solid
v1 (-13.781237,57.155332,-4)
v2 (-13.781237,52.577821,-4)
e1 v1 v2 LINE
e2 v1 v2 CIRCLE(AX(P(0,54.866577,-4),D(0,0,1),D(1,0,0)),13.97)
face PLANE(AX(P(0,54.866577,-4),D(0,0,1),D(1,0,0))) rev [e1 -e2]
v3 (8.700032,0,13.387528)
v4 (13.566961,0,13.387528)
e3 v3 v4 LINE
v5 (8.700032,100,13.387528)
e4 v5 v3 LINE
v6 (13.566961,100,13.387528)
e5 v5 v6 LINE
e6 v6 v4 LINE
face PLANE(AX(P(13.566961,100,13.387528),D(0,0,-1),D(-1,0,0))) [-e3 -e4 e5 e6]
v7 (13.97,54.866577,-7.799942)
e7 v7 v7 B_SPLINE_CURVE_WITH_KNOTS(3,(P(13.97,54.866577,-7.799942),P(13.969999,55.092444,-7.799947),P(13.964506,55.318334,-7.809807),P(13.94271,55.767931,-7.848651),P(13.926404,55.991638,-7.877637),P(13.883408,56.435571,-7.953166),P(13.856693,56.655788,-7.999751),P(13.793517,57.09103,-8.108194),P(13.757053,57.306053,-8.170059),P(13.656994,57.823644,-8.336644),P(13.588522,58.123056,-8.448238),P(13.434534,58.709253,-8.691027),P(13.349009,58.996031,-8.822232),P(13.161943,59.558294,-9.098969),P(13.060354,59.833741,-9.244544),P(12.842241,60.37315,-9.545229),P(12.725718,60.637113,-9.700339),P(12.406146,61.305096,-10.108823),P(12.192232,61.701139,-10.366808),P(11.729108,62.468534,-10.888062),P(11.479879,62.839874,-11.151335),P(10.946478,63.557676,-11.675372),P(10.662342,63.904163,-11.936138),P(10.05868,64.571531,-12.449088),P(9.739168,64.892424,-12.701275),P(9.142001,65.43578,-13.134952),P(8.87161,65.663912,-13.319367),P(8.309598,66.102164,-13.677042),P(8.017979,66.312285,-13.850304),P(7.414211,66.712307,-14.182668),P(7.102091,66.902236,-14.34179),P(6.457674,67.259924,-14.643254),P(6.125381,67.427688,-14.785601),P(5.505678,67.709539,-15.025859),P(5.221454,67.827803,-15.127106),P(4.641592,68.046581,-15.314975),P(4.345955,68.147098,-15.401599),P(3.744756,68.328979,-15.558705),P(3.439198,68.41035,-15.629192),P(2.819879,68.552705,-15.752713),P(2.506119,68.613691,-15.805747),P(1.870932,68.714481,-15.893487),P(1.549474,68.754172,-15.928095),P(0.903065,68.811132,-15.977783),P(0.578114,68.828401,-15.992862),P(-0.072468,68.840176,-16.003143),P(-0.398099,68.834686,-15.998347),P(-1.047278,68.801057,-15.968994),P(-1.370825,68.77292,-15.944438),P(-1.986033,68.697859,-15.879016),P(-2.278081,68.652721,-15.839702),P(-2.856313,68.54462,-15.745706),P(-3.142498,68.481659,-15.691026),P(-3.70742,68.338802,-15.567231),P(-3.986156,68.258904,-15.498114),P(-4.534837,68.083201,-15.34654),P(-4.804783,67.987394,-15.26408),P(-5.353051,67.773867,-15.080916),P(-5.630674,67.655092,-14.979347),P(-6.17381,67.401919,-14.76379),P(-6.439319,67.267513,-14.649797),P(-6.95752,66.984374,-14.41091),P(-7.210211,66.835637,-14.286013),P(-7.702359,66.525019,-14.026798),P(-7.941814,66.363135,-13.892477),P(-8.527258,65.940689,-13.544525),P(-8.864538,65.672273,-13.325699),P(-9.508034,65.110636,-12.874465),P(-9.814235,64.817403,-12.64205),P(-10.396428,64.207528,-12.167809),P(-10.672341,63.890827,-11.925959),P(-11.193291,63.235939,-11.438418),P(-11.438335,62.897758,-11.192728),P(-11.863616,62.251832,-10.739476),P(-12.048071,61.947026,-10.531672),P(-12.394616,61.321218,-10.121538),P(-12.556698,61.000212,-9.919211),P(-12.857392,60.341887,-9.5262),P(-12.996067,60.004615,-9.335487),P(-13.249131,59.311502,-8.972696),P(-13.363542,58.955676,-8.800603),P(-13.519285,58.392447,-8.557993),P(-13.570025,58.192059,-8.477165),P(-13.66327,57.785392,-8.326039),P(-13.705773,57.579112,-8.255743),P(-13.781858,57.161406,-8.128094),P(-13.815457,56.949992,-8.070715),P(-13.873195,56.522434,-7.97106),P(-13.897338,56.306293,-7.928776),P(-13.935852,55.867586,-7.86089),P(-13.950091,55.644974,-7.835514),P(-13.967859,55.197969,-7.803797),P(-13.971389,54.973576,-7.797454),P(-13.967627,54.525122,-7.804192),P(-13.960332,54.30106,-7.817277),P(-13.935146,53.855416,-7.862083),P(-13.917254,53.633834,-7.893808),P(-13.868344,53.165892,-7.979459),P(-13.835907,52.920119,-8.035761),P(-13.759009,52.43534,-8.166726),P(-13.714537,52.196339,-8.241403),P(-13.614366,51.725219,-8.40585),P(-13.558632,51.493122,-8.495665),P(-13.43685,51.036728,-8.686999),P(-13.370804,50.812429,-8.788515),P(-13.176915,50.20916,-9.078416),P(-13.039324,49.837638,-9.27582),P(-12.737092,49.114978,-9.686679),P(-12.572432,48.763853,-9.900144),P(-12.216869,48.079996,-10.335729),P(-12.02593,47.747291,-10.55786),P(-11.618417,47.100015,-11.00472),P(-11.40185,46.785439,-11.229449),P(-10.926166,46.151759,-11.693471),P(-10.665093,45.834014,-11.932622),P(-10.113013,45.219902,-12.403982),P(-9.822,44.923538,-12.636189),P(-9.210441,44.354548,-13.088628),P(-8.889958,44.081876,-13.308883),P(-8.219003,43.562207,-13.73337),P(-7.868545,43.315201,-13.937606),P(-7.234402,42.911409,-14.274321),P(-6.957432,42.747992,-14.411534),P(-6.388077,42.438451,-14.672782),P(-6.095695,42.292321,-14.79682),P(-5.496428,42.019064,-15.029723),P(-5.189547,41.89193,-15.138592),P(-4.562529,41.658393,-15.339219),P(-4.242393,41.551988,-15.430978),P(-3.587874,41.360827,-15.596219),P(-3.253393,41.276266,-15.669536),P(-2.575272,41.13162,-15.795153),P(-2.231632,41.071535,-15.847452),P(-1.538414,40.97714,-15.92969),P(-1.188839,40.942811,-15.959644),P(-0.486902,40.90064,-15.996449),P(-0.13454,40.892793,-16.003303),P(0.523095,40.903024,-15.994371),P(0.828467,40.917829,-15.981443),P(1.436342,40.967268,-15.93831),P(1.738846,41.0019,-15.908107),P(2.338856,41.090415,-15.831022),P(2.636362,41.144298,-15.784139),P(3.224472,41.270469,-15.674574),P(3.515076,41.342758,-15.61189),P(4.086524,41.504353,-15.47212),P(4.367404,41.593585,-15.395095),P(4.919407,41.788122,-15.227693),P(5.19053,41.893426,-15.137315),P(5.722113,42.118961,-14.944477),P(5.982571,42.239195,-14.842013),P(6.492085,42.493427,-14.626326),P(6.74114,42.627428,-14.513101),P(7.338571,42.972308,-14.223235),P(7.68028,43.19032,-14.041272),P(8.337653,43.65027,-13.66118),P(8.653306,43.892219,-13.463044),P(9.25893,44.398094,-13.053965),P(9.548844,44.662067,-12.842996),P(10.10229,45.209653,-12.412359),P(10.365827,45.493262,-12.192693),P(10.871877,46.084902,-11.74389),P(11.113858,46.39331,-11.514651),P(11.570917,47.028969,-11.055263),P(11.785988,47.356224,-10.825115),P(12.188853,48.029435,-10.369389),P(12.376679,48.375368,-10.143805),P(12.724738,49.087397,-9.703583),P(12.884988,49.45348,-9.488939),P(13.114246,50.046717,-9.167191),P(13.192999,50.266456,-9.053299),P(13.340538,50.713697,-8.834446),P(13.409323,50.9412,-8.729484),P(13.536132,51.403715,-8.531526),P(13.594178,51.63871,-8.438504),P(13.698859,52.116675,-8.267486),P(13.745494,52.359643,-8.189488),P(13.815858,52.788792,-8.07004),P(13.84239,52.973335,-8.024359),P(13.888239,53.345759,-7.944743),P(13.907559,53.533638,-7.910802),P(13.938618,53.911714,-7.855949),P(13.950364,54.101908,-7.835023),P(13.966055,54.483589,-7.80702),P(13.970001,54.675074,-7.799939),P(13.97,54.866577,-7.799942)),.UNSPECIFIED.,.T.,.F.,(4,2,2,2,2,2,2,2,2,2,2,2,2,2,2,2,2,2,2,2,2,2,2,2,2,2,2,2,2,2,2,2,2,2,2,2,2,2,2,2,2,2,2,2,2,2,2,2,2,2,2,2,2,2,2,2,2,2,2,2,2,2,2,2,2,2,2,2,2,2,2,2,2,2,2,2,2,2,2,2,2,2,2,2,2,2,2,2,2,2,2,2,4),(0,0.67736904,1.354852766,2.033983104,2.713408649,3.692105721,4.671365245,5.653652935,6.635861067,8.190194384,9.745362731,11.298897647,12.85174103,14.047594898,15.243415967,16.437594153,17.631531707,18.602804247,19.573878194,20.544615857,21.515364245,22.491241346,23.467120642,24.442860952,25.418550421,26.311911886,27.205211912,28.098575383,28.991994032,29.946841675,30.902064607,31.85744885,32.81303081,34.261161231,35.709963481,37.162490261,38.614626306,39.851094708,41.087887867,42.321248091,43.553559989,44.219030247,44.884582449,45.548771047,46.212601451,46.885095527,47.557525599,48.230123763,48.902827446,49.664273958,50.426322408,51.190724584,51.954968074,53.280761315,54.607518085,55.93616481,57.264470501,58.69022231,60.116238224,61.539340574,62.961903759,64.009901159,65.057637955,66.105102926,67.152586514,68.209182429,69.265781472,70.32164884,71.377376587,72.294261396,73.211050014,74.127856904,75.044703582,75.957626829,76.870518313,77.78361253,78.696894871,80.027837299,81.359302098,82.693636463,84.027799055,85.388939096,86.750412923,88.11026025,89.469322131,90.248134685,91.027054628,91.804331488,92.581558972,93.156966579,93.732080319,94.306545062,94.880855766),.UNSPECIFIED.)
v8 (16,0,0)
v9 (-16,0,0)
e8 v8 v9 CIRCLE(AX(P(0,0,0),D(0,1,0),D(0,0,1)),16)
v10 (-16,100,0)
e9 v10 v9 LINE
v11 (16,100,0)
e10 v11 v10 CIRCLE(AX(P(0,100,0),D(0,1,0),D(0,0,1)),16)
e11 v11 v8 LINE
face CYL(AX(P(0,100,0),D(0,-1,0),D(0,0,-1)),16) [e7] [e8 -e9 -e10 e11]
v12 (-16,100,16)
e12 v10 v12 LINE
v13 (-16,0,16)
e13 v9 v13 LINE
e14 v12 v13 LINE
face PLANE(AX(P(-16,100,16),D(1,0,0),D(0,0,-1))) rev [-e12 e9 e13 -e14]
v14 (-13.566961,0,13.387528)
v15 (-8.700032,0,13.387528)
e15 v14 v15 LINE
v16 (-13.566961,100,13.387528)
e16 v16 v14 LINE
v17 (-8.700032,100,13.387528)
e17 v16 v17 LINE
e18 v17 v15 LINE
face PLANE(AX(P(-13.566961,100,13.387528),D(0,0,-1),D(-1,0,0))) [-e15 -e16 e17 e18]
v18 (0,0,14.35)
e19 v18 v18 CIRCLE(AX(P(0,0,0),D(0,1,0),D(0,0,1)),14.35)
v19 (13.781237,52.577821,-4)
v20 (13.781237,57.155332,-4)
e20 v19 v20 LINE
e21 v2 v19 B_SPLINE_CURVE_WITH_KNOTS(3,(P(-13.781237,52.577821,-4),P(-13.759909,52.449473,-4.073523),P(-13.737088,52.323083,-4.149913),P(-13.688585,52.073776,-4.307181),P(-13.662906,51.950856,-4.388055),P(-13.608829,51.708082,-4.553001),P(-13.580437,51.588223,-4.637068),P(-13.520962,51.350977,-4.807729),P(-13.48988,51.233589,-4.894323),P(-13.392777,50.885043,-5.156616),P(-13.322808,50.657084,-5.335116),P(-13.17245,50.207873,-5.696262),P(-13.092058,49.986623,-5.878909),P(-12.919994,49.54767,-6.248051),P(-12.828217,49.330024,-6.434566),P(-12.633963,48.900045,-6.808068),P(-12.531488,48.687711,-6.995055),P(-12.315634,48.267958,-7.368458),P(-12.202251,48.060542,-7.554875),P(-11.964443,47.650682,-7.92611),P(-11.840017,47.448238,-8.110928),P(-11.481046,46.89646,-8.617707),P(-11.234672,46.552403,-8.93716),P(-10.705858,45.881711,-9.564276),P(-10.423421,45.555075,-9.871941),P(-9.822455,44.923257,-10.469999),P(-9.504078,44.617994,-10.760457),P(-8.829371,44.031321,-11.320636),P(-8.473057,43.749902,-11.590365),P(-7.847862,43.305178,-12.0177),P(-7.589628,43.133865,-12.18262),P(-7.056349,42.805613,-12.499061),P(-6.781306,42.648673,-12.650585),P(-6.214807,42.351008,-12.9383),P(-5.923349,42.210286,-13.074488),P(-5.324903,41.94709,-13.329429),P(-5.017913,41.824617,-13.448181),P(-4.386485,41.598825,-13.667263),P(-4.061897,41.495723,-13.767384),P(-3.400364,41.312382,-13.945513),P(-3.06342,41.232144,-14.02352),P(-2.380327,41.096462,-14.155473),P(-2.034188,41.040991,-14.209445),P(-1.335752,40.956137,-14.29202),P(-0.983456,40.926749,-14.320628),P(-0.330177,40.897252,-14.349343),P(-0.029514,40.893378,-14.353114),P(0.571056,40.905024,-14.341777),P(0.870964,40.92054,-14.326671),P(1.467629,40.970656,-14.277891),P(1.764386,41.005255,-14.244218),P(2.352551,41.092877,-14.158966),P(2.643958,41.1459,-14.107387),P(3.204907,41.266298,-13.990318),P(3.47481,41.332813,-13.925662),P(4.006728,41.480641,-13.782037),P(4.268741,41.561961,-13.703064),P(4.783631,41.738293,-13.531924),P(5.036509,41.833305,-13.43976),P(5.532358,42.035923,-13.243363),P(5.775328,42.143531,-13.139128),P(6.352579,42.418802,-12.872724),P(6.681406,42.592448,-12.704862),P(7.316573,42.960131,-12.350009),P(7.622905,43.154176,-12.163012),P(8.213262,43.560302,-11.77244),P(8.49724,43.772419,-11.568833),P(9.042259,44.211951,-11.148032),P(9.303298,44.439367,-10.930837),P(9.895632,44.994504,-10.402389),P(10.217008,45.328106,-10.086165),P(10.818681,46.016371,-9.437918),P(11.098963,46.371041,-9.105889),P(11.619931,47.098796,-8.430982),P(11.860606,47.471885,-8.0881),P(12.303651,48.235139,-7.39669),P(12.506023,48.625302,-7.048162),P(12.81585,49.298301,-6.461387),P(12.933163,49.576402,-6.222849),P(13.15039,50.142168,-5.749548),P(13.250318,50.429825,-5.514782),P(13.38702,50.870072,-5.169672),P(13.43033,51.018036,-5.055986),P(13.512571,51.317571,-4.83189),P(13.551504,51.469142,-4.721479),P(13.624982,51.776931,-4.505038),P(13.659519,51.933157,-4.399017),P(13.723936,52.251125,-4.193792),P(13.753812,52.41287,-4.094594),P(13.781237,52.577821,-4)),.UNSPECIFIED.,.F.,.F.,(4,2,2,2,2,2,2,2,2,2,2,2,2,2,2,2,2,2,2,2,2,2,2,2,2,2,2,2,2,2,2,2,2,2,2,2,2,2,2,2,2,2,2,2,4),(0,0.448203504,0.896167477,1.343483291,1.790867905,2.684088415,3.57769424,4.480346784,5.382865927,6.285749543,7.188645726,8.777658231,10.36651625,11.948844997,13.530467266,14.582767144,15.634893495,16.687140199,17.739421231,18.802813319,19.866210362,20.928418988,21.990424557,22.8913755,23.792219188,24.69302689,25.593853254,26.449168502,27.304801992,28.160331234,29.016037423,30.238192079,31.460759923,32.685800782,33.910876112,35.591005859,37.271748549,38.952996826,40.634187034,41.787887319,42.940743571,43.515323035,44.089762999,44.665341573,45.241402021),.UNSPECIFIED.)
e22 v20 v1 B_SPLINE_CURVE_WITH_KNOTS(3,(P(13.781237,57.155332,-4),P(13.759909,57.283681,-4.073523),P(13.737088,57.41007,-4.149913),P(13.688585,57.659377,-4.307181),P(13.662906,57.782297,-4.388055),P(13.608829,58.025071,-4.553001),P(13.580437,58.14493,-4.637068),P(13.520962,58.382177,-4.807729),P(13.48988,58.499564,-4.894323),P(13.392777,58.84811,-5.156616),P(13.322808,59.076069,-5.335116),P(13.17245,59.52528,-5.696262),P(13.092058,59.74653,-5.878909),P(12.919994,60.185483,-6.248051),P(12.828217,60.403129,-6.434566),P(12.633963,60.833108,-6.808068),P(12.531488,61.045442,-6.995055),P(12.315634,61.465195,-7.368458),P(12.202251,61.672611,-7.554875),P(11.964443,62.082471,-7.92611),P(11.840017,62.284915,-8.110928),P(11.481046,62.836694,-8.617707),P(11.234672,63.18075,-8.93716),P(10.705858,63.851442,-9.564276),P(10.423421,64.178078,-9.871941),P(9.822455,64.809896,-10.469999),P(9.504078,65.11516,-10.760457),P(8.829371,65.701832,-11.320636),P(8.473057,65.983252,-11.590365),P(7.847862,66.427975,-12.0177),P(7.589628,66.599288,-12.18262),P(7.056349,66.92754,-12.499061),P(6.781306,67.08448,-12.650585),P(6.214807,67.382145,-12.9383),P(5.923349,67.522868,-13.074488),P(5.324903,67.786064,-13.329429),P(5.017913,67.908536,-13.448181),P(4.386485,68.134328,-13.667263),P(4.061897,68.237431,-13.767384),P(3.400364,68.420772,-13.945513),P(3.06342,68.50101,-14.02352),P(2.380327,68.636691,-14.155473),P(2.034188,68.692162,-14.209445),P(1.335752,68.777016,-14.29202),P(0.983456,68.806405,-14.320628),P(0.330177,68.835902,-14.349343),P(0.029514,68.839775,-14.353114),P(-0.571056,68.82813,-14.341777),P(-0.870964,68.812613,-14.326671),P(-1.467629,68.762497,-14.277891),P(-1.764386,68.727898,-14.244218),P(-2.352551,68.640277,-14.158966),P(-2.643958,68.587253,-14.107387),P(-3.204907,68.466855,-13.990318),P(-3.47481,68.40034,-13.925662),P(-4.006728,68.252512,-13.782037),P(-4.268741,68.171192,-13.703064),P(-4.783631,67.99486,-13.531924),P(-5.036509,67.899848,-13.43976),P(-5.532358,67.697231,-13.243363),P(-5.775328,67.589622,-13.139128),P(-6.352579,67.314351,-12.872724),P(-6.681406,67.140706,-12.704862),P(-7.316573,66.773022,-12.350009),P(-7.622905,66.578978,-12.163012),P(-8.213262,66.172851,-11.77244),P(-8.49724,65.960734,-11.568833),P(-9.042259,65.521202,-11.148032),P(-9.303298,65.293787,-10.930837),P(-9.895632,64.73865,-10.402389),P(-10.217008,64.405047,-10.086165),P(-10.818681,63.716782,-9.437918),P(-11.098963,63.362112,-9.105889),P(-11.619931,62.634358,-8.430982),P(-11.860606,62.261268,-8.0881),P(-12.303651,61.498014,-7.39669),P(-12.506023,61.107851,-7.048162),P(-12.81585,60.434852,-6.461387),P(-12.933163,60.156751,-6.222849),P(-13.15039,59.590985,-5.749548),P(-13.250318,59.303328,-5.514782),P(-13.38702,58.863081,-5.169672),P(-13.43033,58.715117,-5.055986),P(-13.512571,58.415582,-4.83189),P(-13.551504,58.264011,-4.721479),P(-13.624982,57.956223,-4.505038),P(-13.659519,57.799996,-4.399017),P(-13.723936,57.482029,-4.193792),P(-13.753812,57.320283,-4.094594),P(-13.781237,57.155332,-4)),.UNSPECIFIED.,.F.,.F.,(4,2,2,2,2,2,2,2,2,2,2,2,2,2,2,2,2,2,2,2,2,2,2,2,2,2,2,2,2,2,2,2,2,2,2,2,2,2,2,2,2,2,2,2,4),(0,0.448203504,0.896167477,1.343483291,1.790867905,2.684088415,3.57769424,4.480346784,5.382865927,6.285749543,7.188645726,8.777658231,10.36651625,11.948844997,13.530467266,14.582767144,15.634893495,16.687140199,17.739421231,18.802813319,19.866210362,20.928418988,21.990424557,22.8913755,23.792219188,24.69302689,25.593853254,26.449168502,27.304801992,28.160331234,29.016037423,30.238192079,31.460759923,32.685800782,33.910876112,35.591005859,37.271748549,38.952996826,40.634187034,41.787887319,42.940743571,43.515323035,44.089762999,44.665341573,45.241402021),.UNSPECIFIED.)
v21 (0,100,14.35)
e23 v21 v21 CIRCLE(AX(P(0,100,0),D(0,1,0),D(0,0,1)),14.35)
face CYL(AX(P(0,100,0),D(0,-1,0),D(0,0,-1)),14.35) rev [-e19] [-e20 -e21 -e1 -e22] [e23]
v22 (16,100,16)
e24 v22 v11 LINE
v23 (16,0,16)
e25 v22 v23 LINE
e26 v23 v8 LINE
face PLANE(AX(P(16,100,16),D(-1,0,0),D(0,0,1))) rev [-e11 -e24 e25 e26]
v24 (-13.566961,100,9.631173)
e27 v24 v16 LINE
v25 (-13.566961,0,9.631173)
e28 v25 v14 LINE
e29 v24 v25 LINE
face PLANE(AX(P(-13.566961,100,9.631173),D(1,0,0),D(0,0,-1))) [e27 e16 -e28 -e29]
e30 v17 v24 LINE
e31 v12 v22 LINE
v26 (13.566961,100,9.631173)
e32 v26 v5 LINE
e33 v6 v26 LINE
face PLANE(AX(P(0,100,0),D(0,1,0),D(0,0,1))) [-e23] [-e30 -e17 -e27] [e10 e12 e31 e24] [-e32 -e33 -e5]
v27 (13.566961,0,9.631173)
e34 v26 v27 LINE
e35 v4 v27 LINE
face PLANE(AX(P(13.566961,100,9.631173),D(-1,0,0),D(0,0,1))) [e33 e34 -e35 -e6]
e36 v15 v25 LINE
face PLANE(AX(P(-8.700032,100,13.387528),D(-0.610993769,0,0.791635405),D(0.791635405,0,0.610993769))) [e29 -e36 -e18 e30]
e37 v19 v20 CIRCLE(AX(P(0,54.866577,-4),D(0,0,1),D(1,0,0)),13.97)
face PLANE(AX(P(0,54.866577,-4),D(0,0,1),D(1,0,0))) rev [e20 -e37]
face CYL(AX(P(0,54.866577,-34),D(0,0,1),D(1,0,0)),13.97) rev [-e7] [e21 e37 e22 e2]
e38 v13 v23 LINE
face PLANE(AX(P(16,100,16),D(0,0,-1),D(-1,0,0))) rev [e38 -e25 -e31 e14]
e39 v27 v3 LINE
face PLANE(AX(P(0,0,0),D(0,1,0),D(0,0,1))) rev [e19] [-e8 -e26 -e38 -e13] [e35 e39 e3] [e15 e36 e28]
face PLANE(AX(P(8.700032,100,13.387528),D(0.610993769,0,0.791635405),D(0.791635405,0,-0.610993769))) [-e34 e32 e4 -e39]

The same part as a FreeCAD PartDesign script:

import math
import FreeCAD as App
import Part
import Sketcher

V = App.Vector
Q = App.Units.Quantity

doc = App.newDocument("Part")
params = doc.addObject("Spreadsheet::Sheet", "Params")
for row, (alias, value) in enumerate([
    ("sketch1_radius", "16 mm"),
    ("sketch1_diameter", "28.7 mm"),
    ("sketch1_height", "16 mm"),
    ("pad1_length", "100 mm"),
    ("sketch2_diameter", "27.94 mm"),
    ("pocket1_length", "30 mm"),
], start=1):
    params.set(f"A{row}", alias)
    params.set(f"B{row}", "=" + value)
    params.setAlias(f"B{row}", alias)

body = doc.addObject("PartDesign::Body", "Body")

sketch1 = body.newObject("Sketcher::SketchObject", "Sketch")
sketch1.AttachmentSupport = (doc.getObject("XZ_Plane"), [""])
sketch1.MapMode = "FlatFace"
sketch1.addGeometry(Part.LineSegment(V(-16, 16, 0), V(16, 16, 0)), False)
sketch1.addGeometry(Part.LineSegment(V(16, 16, 0), V(16, 0, 0)), False)
sketch1.addGeometry(Part.ArcOfCircle(Part.Circle(V(0, 0, 0), V(0, 0, 1), 16), math.radians(180), math.radians(360)), False)
sketch1.addGeometry(Part.LineSegment(V(-16, 0, 0), V(-16, 16, 0)), False)
sketch1.addGeometry(Part.LineSegment(V(13.566961, 13.387528, 0), V(8.700032, 13.387528, 0)), False)
sketch1.addGeometry(Part.LineSegment(V(8.700032, 13.387528, 0), V(13.566961, 9.631173, 0)), False)
sketch1.addGeometry(Part.LineSegment(V(13.566961, 9.631173, 0), V(13.566961, 13.387528, 0)), False)
sketch1.addGeometry(Part.Circle(V(0, 0, 0), V(0, 0, 1), 14.35), False)
sketch1.addGeometry(Part.LineSegment(V(-13.566961, 13.387528, 0), V(-13.566961, 9.631173, 0)), False)
sketch1.addGeometry(Part.LineSegment(V(-13.566961, 9.631173, 0), V(-8.700032, 13.387528, 0)), False)
sketch1.addGeometry(Part.LineSegment(V(-8.700032, 13.387528, 0), V(-13.566961, 13.387528, 0)), False)
sketch1.addConstraint(Sketcher.Constraint("Coincident", 0, 2, 1, 1))
sketch1.addConstraint(Sketcher.Constraint("Tangent", 1, 2, 2, 2))
sketch1.addConstraint(Sketcher.Constraint("Tangent", 2, 1, 3, 1))
sketch1.addConstraint(Sketcher.Constraint("Coincident", 3, 2, 0, 1))
sketch1.addConstraint(Sketcher.Constraint("Coincident", 4, 2, 5, 1))
sketch1.addConstraint(Sketcher.Constraint("Coincident", 5, 2, 6, 1))
sketch1.addConstraint(Sketcher.Constraint("Coincident", 6, 2, 4, 1))
sketch1.addConstraint(Sketcher.Constraint("Coincident", 8, 2, 9, 1))
sketch1.addConstraint(Sketcher.Constraint("Coincident", 9, 2, 10, 1))
sketch1.addConstraint(Sketcher.Constraint("Coincident", 10, 2, 8, 1))
sketch1.addConstraint(Sketcher.Constraint("Horizontal", 0))
sketch1.addConstraint(Sketcher.Constraint("Vertical", 1))
sketch1.addConstraint(Sketcher.Constraint("Vertical", 3))
sketch1.addConstraint(Sketcher.Constraint("Horizontal", 4))
sketch1.addConstraint(Sketcher.Constraint("Vertical", 6))
sketch1.addConstraint(Sketcher.Constraint("Vertical", 8))
sketch1.addConstraint(Sketcher.Constraint("Horizontal", 10))
sketch1.addConstraint(Sketcher.Constraint("Coincident", 2, 3, -1, 1))
sketch1.addConstraint(Sketcher.Constraint("Coincident", 7, 3, -1, 1))
sketch1.addConstraint(Sketcher.Constraint("Symmetric", 5, 2, 8, 2, -2))
sketch1.addConstraint(Sketcher.Constraint("Symmetric", 4, 2, 9, 2, -2))
sketch1.addConstraint(Sketcher.Constraint("Radius", 2, Q("16 mm")))
sketch1.addConstraint(Sketcher.Constraint("Diameter", 7, Q("28.7 mm")))
sketch1.addConstraint(Sketcher.Constraint("DistanceY", 1, 2, 1, 1, Q("16 mm")))
sketch1.addConstraint(Sketcher.Constraint("DistanceX", 4, 2, 4, 1, Q("4.866929 mm")))
sketch1.addConstraint(Sketcher.Constraint("DistanceY", 6, 1, 6, 2, Q("3.756354 mm")))
sketch1.addConstraint(Sketcher.Constraint("DistanceX", -1, 1, 4, 2, Q("8.700032 mm")))
sketch1.addConstraint(Sketcher.Constraint("DistanceY", -1, 1, 4, 2, Q("13.387528 mm")))
sketch1.setExpression("Constraints[21]", "Params.sketch1_radius")
sketch1.setExpression("Constraints[22]", "Params.sketch1_diameter")
sketch1.setExpression("Constraints[23]", "Params.sketch1_height")
pad1 = body.newObject("PartDesign::Pad", "Pad")
pad1.Profile = sketch1
pad1.setExpression("Length", "Params.pad1_length")
pad1.Reversed = True

sketch2 = body.newObject("Sketcher::SketchObject", "Sketch001")
sketch2.AttachmentSupport = (doc.getObject("XY_Plane"), [""])
sketch2.MapMode = "FlatFace"
sketch2.AttachmentOffset = App.Placement(V(0, 0, -19), App.Rotation())
sketch2.addGeometry(Part.Circle(V(0, 54.866577, 0), V(0, 0, 1), 13.97), False)
sketch2.addConstraint(Sketcher.Constraint("PointOnObject", 0, 3, -2))
sketch2.addConstraint(Sketcher.Constraint("Diameter", 0, Q("27.94 mm")))
sketch2.addConstraint(Sketcher.Constraint("DistanceY", -1, 1, 0, 3, Q("54.866577 mm")))
sketch2.setExpression("Constraints[1]", "Params.sketch2_diameter")
pocket1 = body.newObject("PartDesign::Pocket", "Pocket")
pocket1.Profile = sketch2
pocket1.setExpression("Length", "Params.pocket1_length")
pocket1.Midplane = True

doc.recompute()
